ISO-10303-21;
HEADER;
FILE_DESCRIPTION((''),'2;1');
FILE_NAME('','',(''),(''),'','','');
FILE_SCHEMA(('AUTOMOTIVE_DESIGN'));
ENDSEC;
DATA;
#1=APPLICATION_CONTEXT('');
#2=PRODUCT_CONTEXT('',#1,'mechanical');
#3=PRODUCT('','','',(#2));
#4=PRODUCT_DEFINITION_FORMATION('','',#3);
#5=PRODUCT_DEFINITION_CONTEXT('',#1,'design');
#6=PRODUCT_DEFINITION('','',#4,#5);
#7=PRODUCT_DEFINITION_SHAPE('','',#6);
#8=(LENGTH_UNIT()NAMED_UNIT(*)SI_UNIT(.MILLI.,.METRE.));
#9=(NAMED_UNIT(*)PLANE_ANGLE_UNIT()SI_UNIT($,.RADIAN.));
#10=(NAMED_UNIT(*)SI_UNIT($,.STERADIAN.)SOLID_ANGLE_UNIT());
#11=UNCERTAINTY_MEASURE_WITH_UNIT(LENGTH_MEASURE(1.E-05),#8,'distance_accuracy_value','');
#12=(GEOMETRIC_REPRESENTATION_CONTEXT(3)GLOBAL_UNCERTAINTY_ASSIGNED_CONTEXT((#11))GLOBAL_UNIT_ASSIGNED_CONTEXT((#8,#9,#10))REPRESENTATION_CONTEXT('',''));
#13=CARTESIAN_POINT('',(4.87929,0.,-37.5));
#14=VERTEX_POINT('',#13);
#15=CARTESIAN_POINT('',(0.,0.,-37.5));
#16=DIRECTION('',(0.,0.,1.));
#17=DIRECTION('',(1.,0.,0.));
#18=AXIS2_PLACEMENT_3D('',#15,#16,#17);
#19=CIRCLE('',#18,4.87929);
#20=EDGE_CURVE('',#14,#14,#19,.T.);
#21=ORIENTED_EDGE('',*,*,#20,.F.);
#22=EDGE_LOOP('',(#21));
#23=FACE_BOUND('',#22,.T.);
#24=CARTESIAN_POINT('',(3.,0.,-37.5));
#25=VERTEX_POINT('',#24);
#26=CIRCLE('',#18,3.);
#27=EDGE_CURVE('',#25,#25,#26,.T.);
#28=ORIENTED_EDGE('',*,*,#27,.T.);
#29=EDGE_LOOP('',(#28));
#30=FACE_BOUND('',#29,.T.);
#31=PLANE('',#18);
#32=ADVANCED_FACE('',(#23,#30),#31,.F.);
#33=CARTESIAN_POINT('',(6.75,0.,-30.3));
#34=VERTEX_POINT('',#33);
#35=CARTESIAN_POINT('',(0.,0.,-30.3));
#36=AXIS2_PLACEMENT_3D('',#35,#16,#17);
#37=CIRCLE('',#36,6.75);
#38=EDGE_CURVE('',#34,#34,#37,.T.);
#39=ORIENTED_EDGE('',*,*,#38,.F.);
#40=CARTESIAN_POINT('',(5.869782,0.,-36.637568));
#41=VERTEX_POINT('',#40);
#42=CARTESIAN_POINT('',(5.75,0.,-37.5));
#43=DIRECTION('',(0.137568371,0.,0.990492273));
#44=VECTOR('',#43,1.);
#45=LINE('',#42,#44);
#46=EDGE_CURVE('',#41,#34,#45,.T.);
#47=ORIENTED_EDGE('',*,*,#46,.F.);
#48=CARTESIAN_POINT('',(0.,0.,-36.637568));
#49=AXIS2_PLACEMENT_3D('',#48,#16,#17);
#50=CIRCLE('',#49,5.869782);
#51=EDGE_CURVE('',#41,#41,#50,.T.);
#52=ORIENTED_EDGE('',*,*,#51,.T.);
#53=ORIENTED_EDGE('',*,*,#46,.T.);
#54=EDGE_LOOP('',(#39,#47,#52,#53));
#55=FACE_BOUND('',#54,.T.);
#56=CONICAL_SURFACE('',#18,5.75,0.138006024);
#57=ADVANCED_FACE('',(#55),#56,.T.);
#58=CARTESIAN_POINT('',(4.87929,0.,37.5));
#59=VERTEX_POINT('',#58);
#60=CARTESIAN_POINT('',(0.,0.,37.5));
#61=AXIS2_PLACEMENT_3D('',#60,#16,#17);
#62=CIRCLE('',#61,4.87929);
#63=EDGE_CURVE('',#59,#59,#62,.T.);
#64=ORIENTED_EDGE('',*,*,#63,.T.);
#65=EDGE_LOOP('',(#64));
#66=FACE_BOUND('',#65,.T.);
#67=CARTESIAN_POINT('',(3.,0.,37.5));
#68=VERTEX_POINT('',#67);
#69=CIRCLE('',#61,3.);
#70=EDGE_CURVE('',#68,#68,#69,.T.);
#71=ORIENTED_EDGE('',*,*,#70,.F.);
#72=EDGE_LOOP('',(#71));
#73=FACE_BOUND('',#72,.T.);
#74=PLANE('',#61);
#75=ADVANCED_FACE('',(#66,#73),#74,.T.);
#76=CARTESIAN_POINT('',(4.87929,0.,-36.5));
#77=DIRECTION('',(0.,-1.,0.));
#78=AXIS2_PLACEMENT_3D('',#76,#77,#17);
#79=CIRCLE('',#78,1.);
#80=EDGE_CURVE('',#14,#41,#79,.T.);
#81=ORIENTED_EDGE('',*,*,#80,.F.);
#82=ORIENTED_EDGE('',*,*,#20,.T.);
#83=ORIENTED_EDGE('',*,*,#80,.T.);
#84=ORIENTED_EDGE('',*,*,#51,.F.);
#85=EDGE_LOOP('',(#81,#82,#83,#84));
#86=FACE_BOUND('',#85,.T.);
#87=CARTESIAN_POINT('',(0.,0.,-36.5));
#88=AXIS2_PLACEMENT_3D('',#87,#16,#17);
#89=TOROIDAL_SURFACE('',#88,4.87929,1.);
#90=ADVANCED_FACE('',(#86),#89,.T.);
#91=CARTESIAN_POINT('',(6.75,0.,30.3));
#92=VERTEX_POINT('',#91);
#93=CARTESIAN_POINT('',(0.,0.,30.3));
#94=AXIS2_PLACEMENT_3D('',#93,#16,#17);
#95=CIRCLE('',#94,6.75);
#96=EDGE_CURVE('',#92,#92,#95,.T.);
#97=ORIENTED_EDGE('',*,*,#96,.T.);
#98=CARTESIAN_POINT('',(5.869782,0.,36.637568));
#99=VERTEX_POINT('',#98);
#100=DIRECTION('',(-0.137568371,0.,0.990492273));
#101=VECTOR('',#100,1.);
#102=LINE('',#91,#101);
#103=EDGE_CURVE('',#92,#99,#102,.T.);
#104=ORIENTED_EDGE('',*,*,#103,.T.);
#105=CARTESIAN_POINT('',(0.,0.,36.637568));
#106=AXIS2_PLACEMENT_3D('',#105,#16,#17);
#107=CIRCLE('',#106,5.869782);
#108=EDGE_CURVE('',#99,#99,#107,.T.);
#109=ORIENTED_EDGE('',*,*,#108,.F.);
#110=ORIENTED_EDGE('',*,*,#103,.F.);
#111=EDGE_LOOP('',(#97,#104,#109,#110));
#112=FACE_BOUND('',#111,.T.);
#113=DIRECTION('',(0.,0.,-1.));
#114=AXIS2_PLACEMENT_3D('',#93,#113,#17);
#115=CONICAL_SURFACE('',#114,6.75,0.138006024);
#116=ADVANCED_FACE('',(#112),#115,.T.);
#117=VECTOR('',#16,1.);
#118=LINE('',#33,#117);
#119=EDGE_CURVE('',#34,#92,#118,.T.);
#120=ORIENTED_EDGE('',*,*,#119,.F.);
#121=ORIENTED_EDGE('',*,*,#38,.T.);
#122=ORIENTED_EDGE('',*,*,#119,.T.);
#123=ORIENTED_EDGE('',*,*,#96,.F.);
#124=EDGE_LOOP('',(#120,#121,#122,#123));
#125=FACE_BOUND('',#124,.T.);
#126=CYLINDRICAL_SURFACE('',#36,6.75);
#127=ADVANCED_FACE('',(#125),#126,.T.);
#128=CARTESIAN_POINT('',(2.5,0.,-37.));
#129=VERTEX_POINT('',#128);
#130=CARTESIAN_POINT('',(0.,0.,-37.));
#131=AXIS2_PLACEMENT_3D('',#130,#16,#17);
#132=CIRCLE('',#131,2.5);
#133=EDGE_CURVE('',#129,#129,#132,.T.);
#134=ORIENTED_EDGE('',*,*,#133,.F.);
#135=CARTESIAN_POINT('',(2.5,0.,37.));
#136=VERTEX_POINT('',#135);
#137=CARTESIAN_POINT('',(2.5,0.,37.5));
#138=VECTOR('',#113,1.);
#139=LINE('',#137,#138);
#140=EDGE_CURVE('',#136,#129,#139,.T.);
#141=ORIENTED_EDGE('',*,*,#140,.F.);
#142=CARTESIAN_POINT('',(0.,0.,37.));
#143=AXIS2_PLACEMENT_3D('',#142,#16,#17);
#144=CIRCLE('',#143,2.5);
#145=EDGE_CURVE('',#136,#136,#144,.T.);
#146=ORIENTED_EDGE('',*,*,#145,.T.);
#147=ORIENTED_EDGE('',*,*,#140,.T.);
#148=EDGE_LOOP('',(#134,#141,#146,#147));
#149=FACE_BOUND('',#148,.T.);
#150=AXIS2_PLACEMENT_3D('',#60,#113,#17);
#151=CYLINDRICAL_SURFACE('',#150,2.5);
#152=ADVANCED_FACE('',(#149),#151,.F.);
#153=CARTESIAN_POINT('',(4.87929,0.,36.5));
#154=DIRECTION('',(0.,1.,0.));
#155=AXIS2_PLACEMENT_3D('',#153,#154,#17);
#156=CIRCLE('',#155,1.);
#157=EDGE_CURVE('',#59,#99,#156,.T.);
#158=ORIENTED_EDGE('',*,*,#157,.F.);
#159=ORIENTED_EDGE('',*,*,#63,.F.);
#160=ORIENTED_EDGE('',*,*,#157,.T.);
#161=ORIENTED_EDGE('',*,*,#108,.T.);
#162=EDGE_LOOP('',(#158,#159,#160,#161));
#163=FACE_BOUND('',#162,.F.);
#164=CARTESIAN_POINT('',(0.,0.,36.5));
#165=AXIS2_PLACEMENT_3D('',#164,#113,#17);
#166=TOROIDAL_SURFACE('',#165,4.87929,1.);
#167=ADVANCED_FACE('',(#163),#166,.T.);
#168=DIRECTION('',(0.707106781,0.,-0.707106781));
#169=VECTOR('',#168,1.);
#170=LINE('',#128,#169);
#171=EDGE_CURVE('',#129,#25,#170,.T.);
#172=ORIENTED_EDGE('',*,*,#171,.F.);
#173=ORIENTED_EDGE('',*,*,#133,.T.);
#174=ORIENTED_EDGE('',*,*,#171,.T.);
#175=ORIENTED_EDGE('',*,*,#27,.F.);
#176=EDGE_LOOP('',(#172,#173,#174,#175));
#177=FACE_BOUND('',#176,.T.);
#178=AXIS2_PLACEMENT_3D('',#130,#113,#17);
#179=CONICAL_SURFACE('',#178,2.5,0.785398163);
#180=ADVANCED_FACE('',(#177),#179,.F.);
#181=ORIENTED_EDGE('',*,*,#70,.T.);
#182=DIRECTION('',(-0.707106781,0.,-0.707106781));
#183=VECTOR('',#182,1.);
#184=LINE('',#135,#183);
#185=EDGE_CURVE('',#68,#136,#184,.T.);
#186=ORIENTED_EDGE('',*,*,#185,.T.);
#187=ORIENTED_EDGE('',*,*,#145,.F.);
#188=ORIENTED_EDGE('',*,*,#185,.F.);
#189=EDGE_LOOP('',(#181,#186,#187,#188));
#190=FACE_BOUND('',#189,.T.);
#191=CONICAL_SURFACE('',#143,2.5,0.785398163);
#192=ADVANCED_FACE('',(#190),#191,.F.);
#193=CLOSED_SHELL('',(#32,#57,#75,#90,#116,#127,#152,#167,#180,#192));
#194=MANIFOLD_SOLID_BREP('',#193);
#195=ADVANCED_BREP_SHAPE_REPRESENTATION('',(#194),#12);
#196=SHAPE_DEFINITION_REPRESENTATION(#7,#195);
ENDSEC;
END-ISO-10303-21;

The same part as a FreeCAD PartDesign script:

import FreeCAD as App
import Part
import Sketcher

V = App.Vector
Q = App.Units.Quantity


def edges_at(feature, points):
    """Names of the edges that pass closest to the given points."""
    edges = feature.Shape.Edges
    near = lambda p: min(range(len(edges)), key=lambda i: edges[i].distToShape(Part.Vertex(*p))[0])
    return sorted({f"Edge{near(p) + 1}" for p in points})


def add_polygon(sketch, points):
    """Adds a closed chain of lines whose ends are joined by coincident constraints."""
    first, n = sketch.GeometryCount, len(points)
    for a, b in zip(points, points[1:] + points[:1]):
        sketch.addGeometry(Part.LineSegment(App.Vector(*a, 0), App.Vector(*b, 0)), False)
    for i in range(n):
        sketch.addConstraint(Sketcher.Constraint("Coincident", first + i, 2, first + (i + 1) % n, 1))

doc = App.newDocument("Part")
body = doc.addObject("PartDesign::Body", "Body")

sketch1 = doc.addObject("Sketcher::SketchObject", "Sketch")
body.addObject(sketch1)
sketch1.AttachmentSupport = (doc.XZ_Plane, [""])
sketch1.MapMode = "FlatFace"
add_polygon(sketch1, [(5.8, 37.5), (2.5, 37.5), (2.5, -37.5), (5.8, -37.5), (6.8, -30.3), (6.8, 30.3)])
sketch1.addConstraint([
    Sketcher.Constraint("Horizontal", 0),
    Sketcher.Constraint("Vertical", 1),
    Sketcher.Constraint("Horizontal", 2),
    Sketcher.Constraint("Vertical", 4),
    Sketcher.Constraint("Symmetric", 2, 2, 5, 2, -1),
    Sketcher.Constraint("Equal", 3, 5),
    Sketcher.Constraint("DistanceY", 1, 2, 1, 1, Q("75 mm")),
    Sketcher.Constraint("DistanceY", 4, 1, 4, 2, Q("60.6 mm")),
    Sketcher.Constraint("DistanceX", 2, 2, 3, 2, Q("1 mm")),
    Sketcher.Constraint("DistanceX", 0, 2, 0, 1, Q("3.25 mm")),
    Sketcher.Constraint("DistanceX", -1, 1, 0, 2, Q("2.5 mm")),
])
revolution = doc.addObject("PartDesign::Revolution", "Revolution")
body.addObject(revolution)
revolution.Profile = sketch1
revolution.ReferenceAxis = (sketch1, ["V_Axis"])
revolution.Angle = 360
doc.recompute()

fillet = doc.addObject("PartDesign::Fillet", "Fillet")
body.addObject(fillet)
fillet.Base = (revolution, edges_at(revolution, [(-5.75, 0, 37.5), (-5.75, 0, -37.5)]))
fillet.Radius = 1
doc.recompute()

chamfer = doc.addObject("PartDesign::Chamfer", "Chamfer")
body.addObject(chamfer)
chamfer.Base = (fillet, edges_at(fillet, [(-2.5, 0, 37.5), (-2.5, 0, -37.5)]))
chamfer.Size = 0.5

doc.recompute()
